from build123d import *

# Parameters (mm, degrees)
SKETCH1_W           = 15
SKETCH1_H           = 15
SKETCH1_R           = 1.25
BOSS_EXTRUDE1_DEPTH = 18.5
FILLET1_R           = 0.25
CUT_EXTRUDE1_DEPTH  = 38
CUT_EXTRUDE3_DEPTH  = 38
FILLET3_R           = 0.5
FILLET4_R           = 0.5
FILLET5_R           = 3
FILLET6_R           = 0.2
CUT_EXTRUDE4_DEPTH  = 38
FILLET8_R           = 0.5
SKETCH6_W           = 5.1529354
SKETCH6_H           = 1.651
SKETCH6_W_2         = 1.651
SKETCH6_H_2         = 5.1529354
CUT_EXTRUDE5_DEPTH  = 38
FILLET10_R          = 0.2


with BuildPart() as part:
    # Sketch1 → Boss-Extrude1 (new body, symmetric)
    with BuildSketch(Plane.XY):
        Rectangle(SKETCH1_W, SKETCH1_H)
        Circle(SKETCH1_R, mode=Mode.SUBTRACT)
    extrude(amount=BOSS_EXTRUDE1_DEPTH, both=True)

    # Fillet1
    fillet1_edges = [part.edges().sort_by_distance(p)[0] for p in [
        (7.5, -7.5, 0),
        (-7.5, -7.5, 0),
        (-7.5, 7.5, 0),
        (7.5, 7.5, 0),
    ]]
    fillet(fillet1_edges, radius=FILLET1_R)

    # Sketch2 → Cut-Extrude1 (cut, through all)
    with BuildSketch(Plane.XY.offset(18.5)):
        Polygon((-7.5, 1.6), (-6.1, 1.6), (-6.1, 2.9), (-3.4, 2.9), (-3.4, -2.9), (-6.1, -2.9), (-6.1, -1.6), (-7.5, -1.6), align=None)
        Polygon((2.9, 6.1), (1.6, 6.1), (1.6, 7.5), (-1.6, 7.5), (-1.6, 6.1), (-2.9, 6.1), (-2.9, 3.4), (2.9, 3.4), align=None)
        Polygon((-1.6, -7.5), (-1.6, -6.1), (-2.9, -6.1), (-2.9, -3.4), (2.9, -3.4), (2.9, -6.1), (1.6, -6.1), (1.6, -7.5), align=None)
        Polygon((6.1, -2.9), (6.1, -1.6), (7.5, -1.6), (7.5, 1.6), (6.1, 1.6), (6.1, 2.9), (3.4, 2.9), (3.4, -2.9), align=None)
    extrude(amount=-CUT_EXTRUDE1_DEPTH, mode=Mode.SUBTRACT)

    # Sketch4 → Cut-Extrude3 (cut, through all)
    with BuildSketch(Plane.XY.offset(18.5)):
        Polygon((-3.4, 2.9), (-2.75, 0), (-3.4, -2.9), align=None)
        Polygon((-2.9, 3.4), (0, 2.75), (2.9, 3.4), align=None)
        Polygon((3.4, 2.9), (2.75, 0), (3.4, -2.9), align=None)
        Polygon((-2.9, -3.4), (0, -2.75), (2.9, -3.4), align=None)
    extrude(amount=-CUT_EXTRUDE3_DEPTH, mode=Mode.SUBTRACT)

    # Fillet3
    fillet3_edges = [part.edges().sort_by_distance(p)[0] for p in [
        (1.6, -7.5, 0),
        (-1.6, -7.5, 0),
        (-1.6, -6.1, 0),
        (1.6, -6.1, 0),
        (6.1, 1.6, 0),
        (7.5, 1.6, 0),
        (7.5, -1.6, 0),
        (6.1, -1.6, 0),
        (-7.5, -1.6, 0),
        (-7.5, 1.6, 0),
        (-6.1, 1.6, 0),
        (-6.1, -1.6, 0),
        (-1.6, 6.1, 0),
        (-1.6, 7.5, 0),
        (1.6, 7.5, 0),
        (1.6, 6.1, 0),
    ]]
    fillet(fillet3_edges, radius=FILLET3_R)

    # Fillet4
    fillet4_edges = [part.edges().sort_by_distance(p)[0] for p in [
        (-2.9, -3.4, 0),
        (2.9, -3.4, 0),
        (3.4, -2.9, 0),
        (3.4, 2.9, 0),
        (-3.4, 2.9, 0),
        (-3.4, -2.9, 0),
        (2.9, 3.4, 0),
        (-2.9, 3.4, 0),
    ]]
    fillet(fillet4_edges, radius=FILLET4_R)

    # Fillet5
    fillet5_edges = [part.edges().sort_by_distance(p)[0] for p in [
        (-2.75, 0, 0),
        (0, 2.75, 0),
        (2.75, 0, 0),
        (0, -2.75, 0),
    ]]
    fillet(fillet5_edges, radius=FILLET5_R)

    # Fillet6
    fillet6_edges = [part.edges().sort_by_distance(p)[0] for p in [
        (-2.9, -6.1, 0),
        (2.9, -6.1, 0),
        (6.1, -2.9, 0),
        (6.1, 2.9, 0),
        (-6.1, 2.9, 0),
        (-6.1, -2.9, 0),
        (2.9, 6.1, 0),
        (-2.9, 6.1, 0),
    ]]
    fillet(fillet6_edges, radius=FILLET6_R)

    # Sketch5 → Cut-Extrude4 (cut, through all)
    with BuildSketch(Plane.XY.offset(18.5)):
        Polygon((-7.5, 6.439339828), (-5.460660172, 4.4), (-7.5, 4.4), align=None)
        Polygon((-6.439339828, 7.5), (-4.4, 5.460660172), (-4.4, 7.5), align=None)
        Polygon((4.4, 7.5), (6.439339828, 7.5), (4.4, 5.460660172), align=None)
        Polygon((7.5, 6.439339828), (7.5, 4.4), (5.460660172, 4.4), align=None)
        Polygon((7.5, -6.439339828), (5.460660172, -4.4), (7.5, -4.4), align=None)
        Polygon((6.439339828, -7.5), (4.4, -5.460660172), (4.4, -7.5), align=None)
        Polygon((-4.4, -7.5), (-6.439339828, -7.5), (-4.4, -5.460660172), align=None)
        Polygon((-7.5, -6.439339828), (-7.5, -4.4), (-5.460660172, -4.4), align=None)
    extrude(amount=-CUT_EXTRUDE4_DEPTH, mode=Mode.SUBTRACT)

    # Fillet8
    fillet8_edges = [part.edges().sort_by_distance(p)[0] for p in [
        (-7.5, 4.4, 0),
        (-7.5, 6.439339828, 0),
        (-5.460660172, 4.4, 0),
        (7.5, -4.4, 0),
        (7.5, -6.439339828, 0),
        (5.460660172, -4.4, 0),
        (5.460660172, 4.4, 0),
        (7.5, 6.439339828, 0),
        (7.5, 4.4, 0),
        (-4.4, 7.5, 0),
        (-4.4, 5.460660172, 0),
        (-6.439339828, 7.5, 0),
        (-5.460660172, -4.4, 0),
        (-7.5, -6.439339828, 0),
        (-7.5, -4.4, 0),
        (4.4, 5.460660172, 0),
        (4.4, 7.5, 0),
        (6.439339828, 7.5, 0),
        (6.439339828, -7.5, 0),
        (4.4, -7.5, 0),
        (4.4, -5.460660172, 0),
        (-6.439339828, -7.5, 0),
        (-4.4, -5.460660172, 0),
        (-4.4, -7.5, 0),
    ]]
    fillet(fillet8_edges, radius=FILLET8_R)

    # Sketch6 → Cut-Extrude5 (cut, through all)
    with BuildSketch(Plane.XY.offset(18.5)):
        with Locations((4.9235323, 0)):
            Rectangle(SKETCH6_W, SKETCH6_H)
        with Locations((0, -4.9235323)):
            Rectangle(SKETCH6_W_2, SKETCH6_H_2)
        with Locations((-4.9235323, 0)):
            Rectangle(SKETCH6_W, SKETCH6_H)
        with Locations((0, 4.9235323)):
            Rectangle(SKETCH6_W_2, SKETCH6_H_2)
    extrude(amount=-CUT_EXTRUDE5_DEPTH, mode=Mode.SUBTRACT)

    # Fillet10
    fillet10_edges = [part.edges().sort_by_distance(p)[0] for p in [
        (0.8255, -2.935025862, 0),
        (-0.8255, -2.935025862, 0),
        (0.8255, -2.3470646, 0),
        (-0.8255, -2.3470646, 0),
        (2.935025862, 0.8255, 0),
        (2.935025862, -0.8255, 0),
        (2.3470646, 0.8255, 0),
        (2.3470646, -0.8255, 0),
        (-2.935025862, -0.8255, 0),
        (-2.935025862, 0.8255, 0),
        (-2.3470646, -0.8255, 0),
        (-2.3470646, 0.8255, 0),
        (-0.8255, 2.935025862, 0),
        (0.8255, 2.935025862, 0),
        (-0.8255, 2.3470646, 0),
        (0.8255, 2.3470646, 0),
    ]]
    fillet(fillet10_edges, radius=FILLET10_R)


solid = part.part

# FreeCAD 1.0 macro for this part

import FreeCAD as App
import Part
import Sketcher
Q = App.Units.Quantity


def edges_at(feature, points):
    """Names of the edges that pass closest to the given points."""
    edges = feature.Shape.Edges
    near = lambda p: min(range(len(edges)), key=lambda i: edges[i].distToShape(Part.Vertex(*p))[0])
    return sorted({f"Edge{near(p) + 1}" for p in points})

doc = App.newDocument("Part")
body = doc.addObject("PartDesign::Body", "Body")

sketch1 = doc.addObject("Sketcher::SketchObject", "Sketch")
body.addObject(sketch1)
sketch1.AttachmentSupport = (doc.XY_Plane, [""])
sketch1.MapMode = "FlatFace"
sketch1.addGeometry(Part.LineSegment(App.Vector(-7.5, 7.5, 0), App.Vector(-7.5, -7.5, 0)), False)
sketch1.addGeometry(Part.LineSegment(App.Vector(-7.5, -7.5, 0), App.Vector(7.5, -7.5, 0)), False)
sketch1.addGeometry(Part.LineSegment(App.Vector(7.5, -7.5, 0), App.Vector(7.5, 7.5, 0)), False)
sketch1.addGeometry(Part.LineSegment(App.Vector(7.5, 7.5, 0), App.Vector(-7.5, 7.5, 0)), False)
sketch1.addGeometry(Part.Circle(App.Vector(0, 0, 0), App.Vector(0, 0, 1), 1.25), False)
sketch1.addConstraint(Sketcher.Constraint("Coincident", 0, 2, 1, 1))
sketch1.addConstraint(Sketcher.Constraint("Coincident", 1, 2, 2, 1))
sketch1.addConstraint(Sketcher.Constraint("Coincident", 2, 2, 3, 1))
sketch1.addConstraint(Sketcher.Constraint("Coincident", 3, 2, 0, 1))
sketch1.addConstraint(Sketcher.Constraint("Vertical", 0))
sketch1.addConstraint(Sketcher.Constraint("Horizontal", 1))
sketch1.addConstraint(Sketcher.Constraint("Vertical", 2))
sketch1.addConstraint(Sketcher.Constraint("Horizontal", 3))
sketch1.addConstraint(Sketcher.Constraint("Coincident", 4, 3, -1, 1))
sketch1.addConstraint(Sketcher.Constraint("Symmetric", 0, 2, 2, 2, -1, 1))
sketch1.addConstraint(Sketcher.Constraint("Equal", 3, 0))
sketch1.addConstraint(Sketcher.Constraint("Diameter", 4, Q("2.5 mm")))
sketch1.addConstraint(Sketcher.Constraint("DistanceX", 1, 1, 1, 2, Q("15 mm")))
pad1 = doc.addObject("PartDesign::Pad", "Pad")
body.addObject(pad1)
pad1.Profile = sketch1
pad1.Length = 37
pad1.Midplane = True
doc.recompute()

fillet = doc.addObject("PartDesign::Fillet", "Fillet")
body.addObject(fillet)
fillet.Base = (pad1, edges_at(pad1, [
    (7.5, -7.5, 0),
    (-7.5, -7.5, 0),
    (-7.5, 7.5, 0),
    (7.5, 7.5, 0),
]))
fillet.Radius = 0.25

sketch2 = doc.addObject("Sketcher::SketchObject", "Sketch001")
body.addObject(sketch2)
sketch2.AttachmentSupport = (doc.XY_Plane, [""])
sketch2.MapMode = "FlatFace"
sketch2.AttachmentOffset = App.Placement(App.Vector(0, 0, 18.5), App.Rotation())
sketch2.addGeometry(Part.LineSegment(App.Vector(-6.1, 1.6, 0), App.Vector(-7.5, 1.6, 0)), False)
sketch2.addGeometry(Part.LineSegment(App.Vector(-7.5, 1.6, 0), App.Vector(-7.5, -1.6, 0)), False)
sketch2.addGeometry(Part.LineSegment(App.Vector(-7.5, -1.6, 0), App.Vector(-6.1, -1.6, 0)), False)
sketch2.addGeometry(Part.LineSegment(App.Vector(-6.1, -1.6, 0), App.Vector(-6.1, -2.9, 0)), False)
sketch2.addGeometry(Part.LineSegment(App.Vector(-6.1, -2.9, 0), App.Vector(-3.4, -2.9, 0)), False)
sketch2.addGeometry(Part.LineSegment(App.Vector(-3.4, -2.9, 0), App.Vector(-3.4, 2.9, 0)), False)
sketch2.addGeometry(Part.LineSegment(App.Vector(-3.4, 2.9, 0), App.Vector(-6.1, 2.9, 0)), False)
sketch2.addGeometry(Part.LineSegment(App.Vector(-6.1, 2.9, 0), App.Vector(-6.1, 1.6, 0)), False)
sketch2.addGeometry(Part.LineSegment(App.Vector(2.9, 6.1, 0), App.Vector(1.6, 6.1, 0)), False)
sketch2.addGeometry(Part.LineSegment(App.Vector(1.6, 6.1, 0), App.Vector(1.6, 7.5, 0)), False)
sketch2.addGeometry(Part.LineSegment(App.Vector(1.6, 7.5, 0), App.Vector(-1.6, 7.5, 0)), False)
sketch2.addGeometry(Part.LineSegment(App.Vector(-1.6, 7.5, 0), App.Vector(-1.6, 6.1, 0)), False)
sketch2.addGeometry(Part.LineSegment(App.Vector(-1.6, 6.1, 0), App.Vector(-2.9, 6.1, 0)), False)
sketch2.addGeometry(Part.LineSegment(App.Vector(-2.9, 6.1, 0), App.Vector(-2.9, 3.4, 0)), False)
sketch2.addGeometry(Part.LineSegment(App.Vector(-2.9, 3.4, 0), App.Vector(2.9, 3.4, 0)), False)
sketch2.addGeometry(Part.LineSegment(App.Vector(2.9, 3.4, 0), App.Vector(2.9, 6.1, 0)), False)
sketch2.addGeometry(Part.LineSegment(App.Vector(-1.6, -6.1, 0), App.Vector(-1.6, -7.5, 0)), False)
sketch2.addGeometry(Part.LineSegment(App.Vector(-1.6, -7.5, 0), App.Vector(1.6, -7.5, 0)), False)
sketch2.addGeometry(Part.LineSegment(App.Vector(1.6, -7.5, 0), App.Vector(1.6, -6.1, 0)), False)
sketch2.addGeometry(Part.LineSegment(App.Vector(1.6, -6.1, 0), App.Vector(2.9, -6.1, 0)), False)
sketch2.addGeometry(Part.LineSegment(App.Vector(2.9, -6.1, 0), App.Vector(2.9, -3.4, 0)), False)
sketch2.addGeometry(Part.LineSegment(App.Vector(2.9, -3.4, 0), App.Vector(-2.9, -3.4, 0)), False)
sketch2.addGeometry(Part.LineSegment(App.Vector(-2.9, -3.4, 0), App.Vector(-2.9, -6.1, 0)), False)
sketch2.addGeometry(Part.LineSegment(App.Vector(-2.9, -6.1, 0), App.Vector(-1.6, -6.1, 0)), False)
sketch2.addGeometry(Part.LineSegment(App.Vector(6.1, -2.9, 0), App.Vector(6.1, -1.6, 0)), False)
sketch2.addGeometry(Part.LineSegment(App.Vector(6.1, -1.6, 0), App.Vector(7.5, -1.6, 0)), False)
sketch2.addGeometry(Part.LineSegment(App.Vector(7.5, -1.6, 0), App.Vector(7.5, 1.6, 0)), False)
sketch2.addGeometry(Part.LineSegment(App.Vector(7.5, 1.6, 0), App.Vector(6.1, 1.6, 0)), False)
sketch2.addGeometry(Part.LineSegment(App.Vector(6.1, 1.6, 0), App.Vector(6.1, 2.9, 0)), False)
sketch2.addGeometry(Part.LineSegment(App.Vector(6.1, 2.9, 0), App.Vector(3.4, 2.9, 0)), False)
sketch2.addGeometry(Part.LineSegment(App.Vector(3.4, 2.9, 0), App.Vector(3.4, -2.9, 0)), False)
sketch2.addGeometry(Part.LineSegment(App.Vector(3.4, -2.9, 0), App.Vector(6.1, -2.9, 0)), False)
sketch2.addConstraint(Sketcher.Constraint("Coincident", 0, 2, 1, 1))
sketch2.addConstraint(Sketcher.Constraint("Coincident", 1, 2, 2, 1))
sketch2.addConstraint(Sketcher.Constraint("Coincident", 2, 2, 3, 1))
sketch2.addConstraint(Sketcher.Constraint("Coincident", 3, 2, 4, 1))
sketch2.addConstraint(Sketcher.Constraint("Coincident", 4, 2, 5, 1))
sketch2.addConstraint(Sketcher.Constraint("Coincident", 5, 2, 6, 1))
sketch2.addConstraint(Sketcher.Constraint("Coincident", 6, 2, 7, 1))
sketch2.addConstraint(Sketcher.Constraint("Coincident", 7, 2, 0, 1))
sketch2.addConstraint(Sketcher.Constraint("Coincident", 8, 2, 9, 1))
sketch2.addConstraint(Sketcher.Constraint("Coincident", 9, 2, 10, 1))
sketch2.addConstraint(Sketcher.Constraint("Coincident", 10, 2, 11, 1))
sketch2.addConstraint(Sketcher.Constraint("Coincident", 11, 2, 12, 1))
sketch2.addConstraint(Sketcher.Constraint("Coincident", 12, 2, 13, 1))
sketch2.addConstraint(Sketcher.Constraint("Coincident", 13, 2, 14, 1))
sketch2.addConstraint(Sketcher.Constraint("Coincident", 14, 2, 15, 1))
sketch2.addConstraint(Sketcher.Constraint("Coincident", 15, 2, 8, 1))
sketch2.addConstraint(Sketcher.Constraint("Coincident", 16, 2, 17, 1))
sketch2.addConstraint(Sketcher.Constraint("Coincident", 17, 2, 18, 1))
sketch2.addConstraint(Sketcher.Constraint("Coincident", 18, 2, 19, 1))
sketch2.addConstraint(Sketcher.Constraint("Coincident", 19, 2, 20, 1))
sketch2.addConstraint(Sketcher.Constraint("Coincident", 20, 2, 21, 1))
sketch2.addConstraint(Sketcher.Constraint("Coincident", 21, 2, 22, 1))
sketch2.addConstraint(Sketcher.Constraint("Coincident", 22, 2, 23, 1))
sketch2.addConstraint(Sketcher.Constraint("Coincident", 23, 2, 16, 1))
sketch2.addConstraint(Sketcher.Constraint("Coincident", 24, 2, 25, 1))
sketch2.addConstraint(Sketcher.Constraint("Coincident", 25, 2, 26, 1))
sketch2.addConstraint(Sketcher.Constraint("Coincident", 26, 2, 27, 1))
sketch2.addConstraint(Sketcher.Constraint("Coincident", 27, 2, 28, 1))
sketch2.addConstraint(Sketcher.Constraint("Coincident", 28, 2, 29, 1))
sketch2.addConstraint(Sketcher.Constraint("Coincident", 29, 2, 30, 1))
sketch2.addConstraint(Sketcher.Constraint("Coincident", 30, 2, 31, 1))
sketch2.addConstraint(Sketcher.Constraint("Coincident", 31, 2, 24, 1))
sketch2.addConstraint(Sketcher.Constraint("Horizontal", 0))
sketch2.addConstraint(Sketcher.Constraint("Vertical", 1))
sketch2.addConstraint(Sketcher.Constraint("Horizontal", 2))
sketch2.addConstraint(Sketcher.Constraint("Vertical", 3))
sketch2.addConstraint(Sketcher.Constraint("Horizontal", 4))
sketch2.addConstraint(Sketcher.Constraint("Vertical", 5))
sketch2.addConstraint(Sketcher.Constraint("Horizontal", 6))
sketch2.addConstraint(Sketcher.Constraint("Vertical", 7))
sketch2.addConstraint(Sketcher.Constraint("Horizontal", 8))
sketch2.addConstraint(Sketcher.Constraint("Vertical", 9))
sketch2.addConstraint(Sketcher.Constraint("Horizontal", 10))
sketch2.addConstraint(Sketcher.Constraint("Vertical", 11))
sketch2.addConstraint(Sketcher.Constraint("Horizontal", 12))
sketch2.addConstraint(Sketcher.Constraint("Vertical", 13))
sketch2.addConstraint(Sketcher.Constraint("Horizontal", 14))
sketch2.addConstraint(Sketcher.Constraint("Vertical", 15))
sketch2.addConstraint(Sketcher.Constraint("Vertical", 16))
sketch2.addConstraint(Sketcher.Constraint("Horizontal", 17))
sketch2.addConstraint(Sketcher.Constraint("Vertical", 18))
sketch2.addConstraint(Sketcher.Constraint("Horizontal", 19))
sketch2.addConstraint(Sketcher.Constraint("Vertical", 20))
sketch2.addConstraint(Sketcher.Constraint("Horizontal", 21))
sketch2.addConstraint(Sketcher.Constraint("Vertical", 22))
sketch2.addConstraint(Sketcher.Constraint("Horizontal", 23))
sketch2.addConstraint(Sketcher.Constraint("Vertical", 24))
sketch2.addConstraint(Sketcher.Constraint("Horizontal", 25))
sketch2.addConstraint(Sketcher.Constraint("Vertical", 26))
sketch2.addConstraint(Sketcher.Constraint("Horizontal", 27))
sketch2.addConstraint(Sketcher.Constraint("Vertical", 28))
sketch2.addConstraint(Sketcher.Constraint("Horizontal", 29))
sketch2.addConstraint(Sketcher.Constraint("Vertical", 30))
sketch2.addConstraint(Sketcher.Constraint("Horizontal", 31))
sketch2.addConstraint(Sketcher.Constraint("Symmetric", 9, 2, 16, 2, -1, 1))
sketch2.addConstraint(Sketcher.Constraint("Symmetric", 11, 2, 18, 2, -1, 1))
sketch2.addConstraint(Sketcher.Constraint("Symmetric", 13, 2, 20, 2, -1, 1))
sketch2.addConstraint(Sketcher.Constraint("Symmetric", 15, 2, 22, 2, -1, 1))
sketch2.addConstraint(Sketcher.Constraint("Symmetric", 7, 2, 24, 2, -1, 1))
sketch2.addConstraint(Sketcher.Constraint("Symmetric", 1, 2, 26, 2, -1, 1))
sketch2.addConstraint(Sketcher.Constraint("Symmetric", 3, 2, 28, 2, -1, 1))
sketch2.addConstraint(Sketcher.Constraint("Symmetric", 5, 2, 30, 2, -1, 1))
sketch2.addConstraint(Sketcher.Constraint("Symmetric", 8, 2, 11, 2, -2))
sketch2.addConstraint(Sketcher.Constraint("Symmetric", 2, 2, 24, 2, -2))
sketch2.addConstraint(Sketcher.Constraint("Horizontal", 6, 2, 28, 2))
sketch2.addConstraint(Sketcher.Constraint("Vertical", 15, 2, 19, 2))
sketch2.addConstraint(Sketcher.Constraint("Equal", 17, 1))
sketch2.addConstraint(Sketcher.Constraint("Equal", 23, 3))
sketch2.addConstraint(Sketcher.Constraint("Equal", 27, 9))
sketch2.addConstraint(Sketcher.Constraint("Equal", 31, 13))
sketch2.addConstraint(Sketcher.Constraint("DistanceX", 0, 2, 0, 1, Q("1.4 mm")))
sketch2.addConstraint(Sketcher.Constraint("DistanceX", 4, 1, 4, 2, Q("2.7 mm")))
sketch2.addConstraint(Sketcher.Constraint("DistanceX", 8, 2, 8, 1, Q("1.3 mm")))
sketch2.addConstraint(Sketcher.Constraint("DistanceX", 10, 2, 10, 1, Q("3.2 mm")))
sketch2.addConstraint(Sketcher.Constraint("DistanceX", 5, 2, 8, 2, Q("5 mm")))
sketch2.addConstraint(Sketcher.Constraint("DistanceY", 4, 2, 8, 2, Q("9 mm")))
pocket1 = doc.addObject("PartDesign::Pocket", "Pocket")
body.addObject(pocket1)
pocket1.Profile = sketch2
pocket1.Type = "ThroughAll"

sketch3 = doc.addObject("Sketcher::SketchObject", "Sketch002")
body.addObject(sketch3)
sketch3.AttachmentSupport = (doc.XY_Plane, [""])
sketch3.MapMode = "FlatFace"
sketch3.AttachmentOffset = App.Placement(App.Vector(0, 0, 18.5), App.Rotation())
sketch3.addGeometry(Part.LineSegment(App.Vector(-2.75, 0, 0), App.Vector(-3.4, 2.9, 0)), False)
sketch3.addGeometry(Part.LineSegment(App.Vector(-3.4, 2.9, 0), App.Vector(-3.4, -2.9, 0)), False)
sketch3.addGeometry(Part.LineSegment(App.Vector(-3.4, -2.9, 0), App.Vector(-2.75, 0, 0)), False)
sketch3.addGeometry(Part.LineSegment(App.Vector(-2.9, 3.4, 0), App.Vector(0, 2.75, 0)), False)
sketch3.addGeometry(Part.LineSegment(App.Vector(0, 2.75, 0), App.Vector(2.9, 3.4, 0)), False)
sketch3.addGeometry(Part.LineSegment(App.Vector(2.9, 3.4, 0), App.Vector(-2.9, 3.4, 0)), False)
sketch3.addGeometry(Part.LineSegment(App.Vector(3.4, 2.9, 0), App.Vector(2.75, 0, 0)), False)
sketch3.addGeometry(Part.LineSegment(App.Vector(2.75, 0, 0), App.Vector(3.4, -2.9, 0)), False)
sketch3.addGeometry(Part.LineSegment(App.Vector(3.4, -2.9, 0), App.Vector(3.4, 2.9, 0)), False)
sketch3.addGeometry(Part.LineSegment(App.Vector(0, -2.75, 0), App.Vector(-2.9, -3.4, 0)), False)
sketch3.addGeometry(Part.LineSegment(App.Vector(-2.9, -3.4, 0), App.Vector(2.9, -3.4, 0)), False)
sketch3.addGeometry(Part.LineSegment(App.Vector(2.9, -3.4, 0), App.Vector(0, -2.75, 0)), False)
sketch3.addConstraint(Sketcher.Constraint("Coincident", 0, 2, 1, 1))
sketch3.addConstraint(Sketcher.Constraint("Coincident", 1, 2, 2, 1))
sketch3.addConstraint(Sketcher.Constraint("Coincident", 2, 2, 0, 1))
sketch3.addConstraint(Sketcher.Constraint("Coincident", 3, 2, 4, 1))
sketch3.addConstraint(Sketcher.Constraint("Coincident", 4, 2, 5, 1))
sketch3.addConstraint(Sketcher.Constraint("Coincident", 5, 2, 3, 1))
sketch3.addConstraint(Sketcher.Constraint("Coincident", 6, 2, 7, 1))
sketch3.addConstraint(Sketcher.Constraint("Coincident", 7, 2, 8, 1))
sketch3.addConstraint(Sketcher.Constraint("Coincident", 8, 2, 6, 1))
sketch3.addConstraint(Sketcher.Constraint("Coincident", 9, 2, 10, 1))
sketch3.addConstraint(Sketcher.Constraint("Coincident", 10, 2, 11, 1))
sketch3.addConstraint(Sketcher.Constraint("Coincident", 11, 2, 9, 1))
sketch3.addConstraint(Sketcher.Constraint("Vertical", 1))
sketch3.addConstraint(Sketcher.Constraint("Horizontal", 5))
sketch3.addConstraint(Sketcher.Constraint("Vertical", 8))
sketch3.addConstraint(Sketcher.Constraint("Horizontal", 10))
sketch3.addConstraint(Sketcher.Constraint("Symmetric", 2, 2, 6, 2, -1, 1))
sketch3.addConstraint(Sketcher.Constraint("Symmetric", 0, 2, 7, 2, -1, 1))
sketch3.addConstraint(Sketcher.Constraint("Symmetric", 4, 2, 9, 2, -1, 1))
sketch3.addConstraint(Sketcher.Constraint("Symmetric", 3, 2, 11, 2, -1, 1))
sketch3.addConstraint(Sketcher.Constraint("PointOnObject", 2, 2, -1))
sketch3.addConstraint(Sketcher.Constraint("PointOnObject", 3, 2, -2))
sketch3.addConstraint(Sketcher.Constraint("Perpendicular", 2, 3))
sketch3.addConstraint(Sketcher.Constraint("Perpendicular", 0, 4))
sketch3.addConstraint(Sketcher.Constraint("Perpendicular", 3, 6))
sketch3.addConstraint(Sketcher.Constraint("Perpendicular", 6, 11))
sketch3.addConstraint(Sketcher.Constraint("Horizontal", 1, 2, 7, 2))
sketch3.addConstraint(Sketcher.Constraint("Equal", 10, 1))
sketch3.addConstraint(Sketcher.Constraint("DistanceX", 5, 2, 5, 1, Q("5.8 mm")))
sketch3.addConstraint(Sketcher.Constraint("DistanceX", 0, 2, -1, 1, Q("3.4 mm")))
sketch3.addConstraint(Sketcher.Constraint("DistanceY", -1, 1, 4, 2, Q("3.4 mm")))
sketch3.addConstraint(Sketcher.Constraint("DistanceX", 2, 2, 6, 2, Q("5.5 mm")))
pocket2 = doc.addObject("PartDesign::Pocket", "Pocket001")
body.addObject(pocket2)
pocket2.Profile = sketch3
pocket2.Type = "ThroughAll"
doc.recompute()

fillet2 = doc.addObject("PartDesign::Fillet", "Fillet001")
body.addObject(fillet2)
fillet2.Base = (pocket2, edges_at(pocket2, [
    (1.6, -7.5, 0),
    (-1.6, -7.5, 0),
    (-1.6, -6.1, 0),
    (1.6, -6.1, 0),
    (6.1, 1.6, 0),
    (7.5, 1.6, 0),
    (7.5, -1.6, 0),
    (6.1, -1.6, 0),
    (-7.5, -1.6, 0),
    (-7.5, 1.6, 0),
    (-6.1, 1.6, 0),
    (-6.1, -1.6, 0),
    (-1.6, 6.1, 0),
    (-1.6, 7.5, 0),
    (1.6, 7.5, 0),
    (1.6, 6.1, 0),
]))
fillet2.Radius = 0.5
doc.recompute()

fillet3 = doc.addObject("PartDesign::Fillet", "Fillet002")
body.addObject(fillet3)
fillet3.Base = (fillet2, edges_at(fillet2, [
    (-2.9, -3.4, 0),
    (2.9, -3.4, 0),
    (3.4, -2.9, 0),
    (3.4, 2.9, 0),
    (-3.4, 2.9, 0),
    (-3.4, -2.9, 0),
    (2.9, 3.4, 0),
    (-2.9, 3.4, 0),
]))
fillet3.Radius = 0.5
doc.recompute()

fillet4 = doc.addObject("PartDesign::Fillet", "Fillet003")
body.addObject(fillet4)
fillet4.Base = (fillet3, edges_at(fillet3, [
    (-2.75, 0, 0),
    (0, 2.75, 0),
    (2.75, 0, 0),
    (0, -2.75, 0),
]))
fillet4.Radius = 3
doc.recompute()

fillet5 = doc.addObject("PartDesign::Fillet", "Fillet004")
body.addObject(fillet5)
fillet5.Base = (fillet4, edges_at(fillet4, [
    (-2.9, -6.1, 0),
    (2.9, -6.1, 0),
    (6.1, -2.9, 0),
    (6.1, 2.9, 0),
    (-6.1, 2.9, 0),
    (-6.1, -2.9, 0),
    (2.9, 6.1, 0),
    (-2.9, 6.1, 0),
]))
fillet5.Radius = 0.2

sketch4 = doc.addObject("Sketcher::SketchObject", "Sketch003")
body.addObject(sketch4)
sketch4.AttachmentSupport = (doc.XY_Plane, [""])
sketch4.MapMode = "FlatFace"
sketch4.AttachmentOffset = App.Placement(App.Vector(0, 0, 18.5), App.Rotation())
sketch4.addGeometry(Part.LineSegment(App.Vector(-5.46066, 4.4, 0), App.Vector(-7.5, 6.43934, 0)), False)
sketch4.addGeometry(Part.LineSegment(App.Vector(-7.5, 6.43934, 0), App.Vector(-7.5, 4.4, 0)), False)
sketch4.addGeometry(Part.LineSegment(App.Vector(-7.5, 4.4, 0), App.Vector(-5.46066, 4.4, 0)), False)
sketch4.addGeometry(Part.LineSegment(App.Vector(-6.43934, 7.5, 0), App.Vector(-4.4, 5.46066, 0)), False)
sketch4.addGeometry(Part.LineSegment(App.Vector(-4.4, 5.46066, 0), App.Vector(-4.4, 7.5, 0)), False)
sketch4.addGeometry(Part.LineSegment(App.Vector(-4.4, 7.5, 0), App.Vector(-6.43934, 7.5, 0)), False)
sketch4.addGeometry(Part.LineSegment(App.Vector(6.43934, 7.5, 0), App.Vector(4.4, 7.5, 0)), False)
sketch4.addGeometry(Part.LineSegment(App.Vector(4.4, 7.5, 0), App.Vector(4.4, 5.46066, 0)), False)
sketch4.addGeometry(Part.LineSegment(App.Vector(4.4, 5.46066, 0), App.Vector(6.43934, 7.5, 0)), False)
sketch4.addGeometry(Part.LineSegment(App.Vector(7.5, 4.4, 0), App.Vector(7.5, 6.43934, 0)), False)
sketch4.addGeometry(Part.LineSegment(App.Vector(7.5, 6.43934, 0), App.Vector(5.46066, 4.4, 0)), False)
sketch4.addGeometry(Part.LineSegment(App.Vector(5.46066, 4.4, 0), App.Vector(7.5, 4.4, 0)), False)
sketch4.addGeometry(Part.LineSegment(App.Vector(5.46066, -4.4, 0), App.Vector(7.5, -6.43934, 0)), False)
sketch4.addGeometry(Part.LineSegment(App.Vector(7.5, -6.43934, 0), App.Vector(7.5, -4.4, 0)), False)
sketch4.addGeometry(Part.LineSegment(App.Vector(7.5, -4.4, 0), App.Vector(5.46066, -4.4, 0)), False)
sketch4.addGeometry(Part.LineSegment(App.Vector(6.43934, -7.5, 0), App.Vector(4.4, -5.46066, 0)), False)
sketch4.addGeometry(Part.LineSegment(App.Vector(4.4, -5.46066, 0), App.Vector(4.4, -7.5, 0)), False)
sketch4.addGeometry(Part.LineSegment(App.Vector(4.4, -7.5, 0), App.Vector(6.43934, -7.5, 0)), False)
sketch4.addGeometry(Part.LineSegment(App.Vector(-6.43934, -7.5, 0), App.Vector(-4.4, -7.5, 0)), False)
sketch4.addGeometry(Part.LineSegment(App.Vector(-4.4, -7.5, 0), App.Vector(-4.4, -5.46066, 0)), False)
sketch4.addGeometry(Part.LineSegment(App.Vector(-4.4, -5.46066, 0), App.Vector(-6.43934, -7.5, 0)), False)
sketch4.addGeometry(Part.LineSegment(App.Vector(-7.5, -4.4, 0), App.Vector(-7.5, -6.43934, 0)), False)
sketch4.addGeometry(Part.LineSegment(App.Vector(-7.5, -6.43934, 0), App.Vector(-5.46066, -4.4, 0)), False)
sketch4.addGeometry(Part.LineSegment(App.Vector(-5.46066, -4.4, 0), App.Vector(-7.5, -4.4, 0)), False)
sketch4.addConstraint(Sketcher.Constraint("Coincident", 0, 2, 1, 1))
sketch4.addConstraint(Sketcher.Constraint("Coincident", 1, 2, 2, 1))
sketch4.addConstraint(Sketcher.Constraint("Coincident", 2, 2, 0, 1))
sketch4.addConstraint(Sketcher.Constraint("Coincident", 3, 2, 4, 1))
sketch4.addConstraint(Sketcher.Constraint("Coincident", 4, 2, 5, 1))
sketch4.addConstraint(Sketcher.Constraint("Coincident", 5, 2, 3, 1))
sketch4.addConstraint(Sketcher.Constraint("Coincident", 6, 2, 7, 1))
sketch4.addConstraint(Sketcher.Constraint("Coincident", 7, 2, 8, 1))
sketch4.addConstraint(Sketcher.Constraint("Coincident", 8, 2, 6, 1))
sketch4.addConstraint(Sketcher.Constraint("Coincident", 9, 2, 10, 1))
sketch4.addConstraint(Sketcher.Constraint("Coincident", 10, 2, 11, 1))
sketch4.addConstraint(Sketcher.Constraint("Coincident", 11, 2, 9, 1))
sketch4.addConstraint(Sketcher.Constraint("Coincident", 12, 2, 13, 1))
sketch4.addConstraint(Sketcher.Constraint("Coincident", 13, 2, 14, 1))
sketch4.addConstraint(Sketcher.Constraint("Coincident", 14, 2, 12, 1))
sketch4.addConstraint(Sketcher.Constraint("Coincident", 15, 2, 16, 1))
sketch4.addConstraint(Sketcher.Constraint("Coincident", 16, 2, 17, 1))
sketch4.addConstraint(Sketcher.Constraint("Coincident", 17, 2, 15, 1))
sketch4.addConstraint(Sketcher.Constraint("Coincident", 18, 2, 19, 1))
sketch4.addConstraint(Sketcher.Constraint("Coincident", 19, 2, 20, 1))
sketch4.addConstraint(Sketcher.Constraint("Coincident", 20, 2, 18, 1))
sketch4.addConstraint(Sketcher.Constraint("Coincident", 21, 2, 22, 1))
sketch4.addConstraint(Sketcher.Constraint("Coincident", 22, 2, 23, 1))
sketch4.addConstraint(Sketcher.Constraint("Coincident", 23, 2, 21, 1))
sketch4.addConstraint(Sketcher.Constraint("Vertical", 1))
sketch4.addConstraint(Sketcher.Constraint("Horizontal", 2))
sketch4.addConstraint(Sketcher.Constraint("Vertical", 4))
sketch4.addConstraint(Sketcher.Constraint("Horizontal", 5))
sketch4.addConstraint(Sketcher.Constraint("Horizontal", 6))
sketch4.addConstraint(Sketcher.Constraint("Vertical", 7))
sketch4.addConstraint(Sketcher.Constraint("Vertical", 9))
sketch4.addConstraint(Sketcher.Constraint("Horizontal", 11))
sketch4.addConstraint(Sketcher.Constraint("Vertical", 13))
sketch4.addConstraint(Sketcher.Constraint("Horizontal", 14))
sketch4.addConstraint(Sketcher.Constraint("Vertical", 16))
sketch4.addConstraint(Sketcher.Constraint("Horizontal", 17))
sketch4.addConstraint(Sketcher.Constraint("Horizontal", 18))
sketch4.addConstraint(Sketcher.Constraint("Vertical", 19))
sketch4.addConstraint(Sketcher.Constraint("Vertical", 21))
sketch4.addConstraint(Sketcher.Constraint("Horizontal", 23))
sketch4.addConstraint(Sketcher.Constraint("Symmetric", 0, 2, 12, 2, -1, 1))
sketch4.addConstraint(Sketcher.Constraint("Symmetric", 2, 2, 14, 2, -1, 1))
sketch4.addConstraint(Sketcher.Constraint("Symmetric", 3, 2, 15, 2, -1, 1))
sketch4.addConstraint(Sketcher.Constraint("Symmetric", 5, 2, 17, 2, -1, 1))
sketch4.addConstraint(Sketcher.Constraint("Symmetric", 6, 2, 18, 2, -1, 1))
sketch4.addConstraint(Sketcher.Constraint("Symmetric", 9, 2, 21, 2, -1, 1))
sketch4.addConstraint(Sketcher.Constraint("Symmetric", 10, 2, 22, 2, -1, 1))
sketch4.addConstraint(Sketcher.Constraint("Symmetric", 4, 2, 6, 2, -2))
sketch4.addConstraint(Sketcher.Constraint("Symmetric", 0, 2, 9, 2, -2))
sketch4.addConstraint(Sketcher.Constraint("Symmetric", 2, 2, 10, 2, -2))
sketch4.addConstraint(Sketcher.Constraint("Parallel", 0, 3))
sketch4.addConstraint(Sketcher.Constraint("Perpendicular", 3, 8))
sketch4.addConstraint(Sketcher.Constraint("Parallel", 8, 10))
sketch4.addConstraint(Sketcher.Constraint("Perpendicular", 15, 20))
sketch4.addConstraint(Sketcher.Constraint("Horizontal", 3, 2, 7, 2))
sketch4.addConstraint(Sketcher.Constraint("Horizontal", 15, 2, 19, 2))
sketch4.addConstraint(Sketcher.Constraint("Equal", 2, 5))
sketch4.addConstraint(Sketcher.Constraint("DistanceX", 0, 2, -1, 1, Q("7.5 mm")))
sketch4.addConstraint(Sketcher.Constraint("DistanceY", -1, 1, 1, 2, Q("4.4 mm")))
sketch4.addConstraint(Sketcher.Constraint("DistanceX", 3, 2, -1, 1, Q("4.4 mm")))
sketch4.addConstraint(Sketcher.Constraint("DistanceY", -1, 1, 4, 2, Q("7.5 mm")))
sketch4.addConstraint(Sketcher.Constraint("DistanceX", 2, 1, 2, 2, Q("2.03934 mm")))
pocket3 = doc.addObject("PartDesign::Pocket", "Pocket002")
body.addObject(pocket3)
pocket3.Profile = sketch4
pocket3.Type = "ThroughAll"
doc.recompute()

fillet6 = doc.addObject("PartDesign::Fillet", "Fillet005")
body.addObject(fillet6)
fillet6.Base = (pocket3, edges_at(pocket3, [
    (-7.5, 4.4, 0),
    (-7.5, 6.439, 0),
    (-5.461, 4.4, 0),
    (7.5, -4.4, 0),
    (7.5, -6.439, 0),
    (5.461, -4.4, 0),
    (5.461, 4.4, 0),
    (7.5, 6.439, 0),
    (7.5, 4.4, 0),
    (-4.4, 7.5, 0),
    (-4.4, 5.461, 0),
    (-6.439, 7.5, 0),
    (-5.461, -4.4, 0),
    (-7.5, -6.439, 0),
    (-7.5, -4.4, 0),
    (4.4, 5.461, 0),
    (4.4, 7.5, 0),
    (6.439, 7.5, 0),
    (6.439, -7.5, 0),
    (4.4, -7.5, 0),
    (4.4, -5.461, 0),
    (-6.439, -7.5, 0),
    (-4.4, -5.461, 0),
    (-4.4, -7.5, 0),
]))
fillet6.Radius = 0.5

sketch5 = doc.addObject("Sketcher::SketchObject", "Sketch004")
body.addObject(sketch5)
sketch5.AttachmentSupport = (doc.XY_Plane, [""])
sketch5.MapMode = "FlatFace"
sketch5.AttachmentOffset = App.Placement(App.Vector(0, 0, 18.5), App.Rotation())
sketch5.addGeometry(Part.LineSegment(App.Vector(2.347065, 0.8255, 0), App.Vector(2.347065, -0.8255, 0)), False)
sketch5.addGeometry(Part.LineSegment(App.Vector(2.347065, -0.8255, 0), App.Vector(7.5, -0.8255, 0)), False)
sketch5.addGeometry(Part.LineSegment(App.Vector(7.5, -0.8255, 0), App.Vector(7.5, 0.8255, 0)), False)
sketch5.addGeometry(Part.LineSegment(App.Vector(7.5, 0.8255, 0), App.Vector(2.347065, 0.8255, 0)), False)
sketch5.addGeometry(Part.LineSegment(App.Vector(-0.8255, -2.347065, 0), App.Vector(-0.8255, -7.5, 0)), False)
sketch5.addGeometry(Part.LineSegment(App.Vector(-0.8255, -7.5, 0), App.Vector(0.8255, -7.5, 0)), False)
sketch5.addGeometry(Part.LineSegment(App.Vector(0.8255, -7.5, 0), App.Vector(0.8255, -2.347065, 0)), False)
sketch5.addGeometry(Part.LineSegment(App.Vector(0.8255, -2.347065, 0), App.Vector(-0.8255, -2.347065, 0)), False)
sketch5.addGeometry(Part.LineSegment(App.Vector(-7.5, 0.8255, 0), App.Vector(-7.5, -0.8255, 0)), False)
sketch5.addGeometry(Part.LineSegment(App.Vector(-7.5, -0.8255, 0), App.Vector(-2.347065, -0.8255, 0)), False)
sketch5.addGeometry(Part.LineSegment(App.Vector(-2.347065, -0.8255, 0), App.Vector(-2.347065, 0.8255, 0)), False)
sketch5.addGeometry(Part.LineSegment(App.Vector(-2.347065, 0.8255, 0), App.Vector(-7.5, 0.8255, 0)), False)
sketch5.addGeometry(Part.LineSegment(App.Vector(-0.8255, 7.5, 0), App.Vector(-0.8255, 2.347065, 0)), False)
sketch5.addGeometry(Part.LineSegment(App.Vector(-0.8255, 2.347065, 0), App.Vector(0.8255, 2.347065, 0)), False)
sketch5.addGeometry(Part.LineSegment(App.Vector(0.8255, 2.347065, 0), App.Vector(0.8255, 7.5, 0)), False)
sketch5.addGeometry(Part.LineSegment(App.Vector(0.8255, 7.5, 0), App.Vector(-0.8255, 7.5, 0)), False)
sketch5.addConstraint(Sketcher.Constraint("Coincident", 0, 2, 1, 1))
sketch5.addConstraint(Sketcher.Constraint("Coincident", 1, 2, 2, 1))
sketch5.addConstraint(Sketcher.Constraint("Coincident", 2, 2, 3, 1))
sketch5.addConstraint(Sketcher.Constraint("Coincident", 3, 2, 0, 1))
sketch5.addConstraint(Sketcher.Constraint("Coincident", 4, 2, 5, 1))
sketch5.addConstraint(Sketcher.Constraint("Coincident", 5, 2, 6, 1))
sketch5.addConstraint(Sketcher.Constraint("Coincident", 6, 2, 7, 1))
sketch5.addConstraint(Sketcher.Constraint("Coincident", 7, 2, 4, 1))
sketch5.addConstraint(Sketcher.Constraint("Coincident", 8, 2, 9, 1))
sketch5.addConstraint(Sketcher.Constraint("Coincident", 9, 2, 10, 1))
sketch5.addConstraint(Sketcher.Constraint("Coincident", 10, 2, 11, 1))
sketch5.addConstraint(Sketcher.Constraint("Coincident", 11, 2, 8, 1))
sketch5.addConstraint(Sketcher.Constraint("Coincident", 12, 2, 13, 1))
sketch5.addConstraint(Sketcher.Constraint("Coincident", 13, 2, 14, 1))
sketch5.addConstraint(Sketcher.Constraint("Coincident", 14, 2, 15, 1))
sketch5.addConstraint(Sketcher.Constraint("Coincident", 15, 2, 12, 1))
sketch5.addConstraint(Sketcher.Constraint("Vertical", 0))
sketch5.addConstraint(Sketcher.Constraint("Horizontal", 1))
sketch5.addConstraint(Sketcher.Constraint("Vertical", 2))
sketch5.addConstraint(Sketcher.Constraint("Horizontal", 3))
sketch5.addConstraint(Sketcher.Constraint("Vertical", 4))
sketch5.addConstraint(Sketcher.Constraint("Horizontal", 5))
sketch5.addConstraint(Sketcher.Constraint("Vertical", 6))
sketch5.addConstraint(Sketcher.Constraint("Horizontal", 7))
sketch5.addConstraint(Sketcher.Constraint("Vertical", 8))
sketch5.addConstraint(Sketcher.Constraint("Horizontal", 9))
sketch5.addConstraint(Sketcher.Constraint("Vertical", 10))
sketch5.addConstraint(Sketcher.Constraint("Horizontal", 11))
sketch5.addConstraint(Sketcher.Constraint("Vertical", 12))
sketch5.addConstraint(Sketcher.Constraint("Horizontal", 13))
sketch5.addConstraint(Sketcher.Constraint("Vertical", 14))
sketch5.addConstraint(Sketcher.Constraint("Horizontal", 15))
sketch5.addConstraint(Sketcher.Constraint("Symmetric", 2, 2, 8, 2, -1, 1))
sketch5.addConstraint(Sketcher.Constraint("Symmetric", 0, 2, 10, 2, -1, 1))
sketch5.addConstraint(Sketcher.Constraint("Symmetric", 6, 2, 12, 2, -1, 1))
sketch5.addConstraint(Sketcher.Constraint("Symmetric", 4, 2, 14, 2, -1, 1))
sketch5.addConstraint(Sketcher.Constraint("Horizontal", 1, 2, 8, 2))
sketch5.addConstraint(Sketcher.Constraint("Vertical", 7, 2, 12, 2))
sketch5.addConstraint(Sketcher.Constraint("Equal", 15, 0))
sketch5.addConstraint(Sketcher.Constraint("Equal", 11, 4))
sketch5.addConstraint(Sketcher.Constraint("DistanceX", -1, 1, 1, 2, Q("7.5 mm")))
sketch5.addConstraint(Sketcher.Constraint("DistanceY", 4, 2, -1, 1, Q("7.5 mm")))
sketch5.addConstraint(Sketcher.Constraint("DistanceX", 5, 1, 5, 2, Q("1.651 mm")))
sketch5.addConstraint(Sketcher.Constraint("DistanceX", 1, 1, 1, 2, Q("5.152935 mm")))
pocket4 = doc.addObject("PartDesign::Pocket", "Pocket003")
body.addObject(pocket4)
pocket4.Profile = sketch5
pocket4.Type = "ThroughAll"
doc.recompute()

fillet7 = doc.addObject("PartDesign::Fillet", "Fillet006")
body.addObject(fillet7)
fillet7.Base = (pocket4, edges_at(pocket4, [
    (0.826, -2.935, 0),
    (-0.826, -2.935, 0),
    (0.826, -2.347, 0),
    (-0.826, -2.347, 0),
    (2.935, 0.826, 0),
    (2.935, -0.826, 0),
    (2.347, 0.826, 0),
    (2.347, -0.826, 0),
    (-2.935, -0.826, 0),
    (-2.935, 0.826, 0),
    (-2.347, -0.826, 0),
    (-2.347, 0.826, 0),
    (-0.826, 2.935, 0),
    (0.826, 2.935, 0),
    (-0.826, 2.347, 0),
    (0.826, 2.347, 0),
]))
fillet7.Radius = 0.2

doc.recompute()
